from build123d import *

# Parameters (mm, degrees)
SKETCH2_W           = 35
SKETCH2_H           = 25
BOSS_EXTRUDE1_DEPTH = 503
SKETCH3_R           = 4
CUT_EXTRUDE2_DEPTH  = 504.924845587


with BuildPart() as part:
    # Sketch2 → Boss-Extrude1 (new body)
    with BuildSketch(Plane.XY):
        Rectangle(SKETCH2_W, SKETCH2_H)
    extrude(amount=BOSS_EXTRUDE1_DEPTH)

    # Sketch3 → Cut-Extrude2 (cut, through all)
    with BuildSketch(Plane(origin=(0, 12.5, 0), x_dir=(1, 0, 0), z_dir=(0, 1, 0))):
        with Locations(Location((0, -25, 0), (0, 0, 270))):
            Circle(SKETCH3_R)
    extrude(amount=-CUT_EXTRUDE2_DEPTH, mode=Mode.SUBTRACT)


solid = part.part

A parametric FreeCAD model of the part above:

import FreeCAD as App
import Part
import Sketcher

V = App.Vector

doc = App.newDocument("Part")
body = doc.addObject("PartDesign::Body", "Body")

sketch1 = body.newObject("Sketcher::SketchObject", "Sketch")
sketch1.AttachmentSupport = (doc.getObject("XY_Plane"), [""])
sketch1.MapMode = "FlatFace"
sketch1.addGeometry(Part.LineSegment(V(-18, 12, 0), V(-18, -12, 0)), False)
sketch1.addGeometry(Part.LineSegment(V(-18, -12, 0), V(18, -12, 0)), False)
sketch1.addGeometry(Part.LineSegment(V(18, -12, 0), V(18, 12, 0)), False)
sketch1.addGeometry(Part.LineSegment(V(18, 12, 0), V(-18, 12, 0)), False)
sketch1.addConstraint(Sketcher.Constraint("Coincident", 0, 2, 1, 1))
sketch1.addConstraint(Sketcher.Constraint("Coincident", 1, 2, 2, 1))
sketch1.addConstraint(Sketcher.Constraint("Coincident", 2, 2, 3, 1))
sketch1.addConstraint(Sketcher.Constraint("Coincident", 3, 2, 0, 1))
sketch1.addConstraint(Sketcher.Constraint("Vertical", 0))
sketch1.addConstraint(Sketcher.Constraint("Horizontal", 1))
sketch1.addConstraint(Sketcher.Constraint("Vertical", 2))
sketch1.addConstraint(Sketcher.Constraint("Horizontal", 3))
sketch1.addConstraint(Sketcher.Constraint("Symmetric", 0, 2, 2, 2, -1, 1))
sketch1.addConstraint(Sketcher.Constraint("DistanceX", 1, 1, 1, 2, 35.0))
sketch1.addConstraint(Sketcher.Constraint("DistanceY", 0, 2, 0, 1, 25.0))
pad1 = body.newObject("PartDesign::Pad", "Pad")
pad1.Profile = sketch1
pad1.Length = 503

sketch2 = body.newObject("Sketcher::SketchObject", "Sketch001")
sketch2.AttachmentSupport = (doc.getObject("XZ_Plane"), [""])
sketch2.MapMode = "FlatFace"
sketch2.AttachmentOffset = App.Placement(V(0, 0, -12.5), App.Rotation())
sketch2.addGeometry(Part.Circle(V(0, 25, 0), V(0, 0, 1), 4), False)
sketch2.addConstraint(Sketcher.Constraint("PointOnObject", 0, 3, -2))
sketch2.addConstraint(Sketcher.Constraint("Diameter", 0, 8.0))
sketch2.addConstraint(Sketcher.Constraint("DistanceY", -1, 1, 0, 3, 25.0))
pocket1 = body.newObject("PartDesign::Pocket", "Pocket")
pocket1.Profile = sketch2
pocket1.Type = "ThroughAll"
pocket1.Reversed = True

doc.recompute()
